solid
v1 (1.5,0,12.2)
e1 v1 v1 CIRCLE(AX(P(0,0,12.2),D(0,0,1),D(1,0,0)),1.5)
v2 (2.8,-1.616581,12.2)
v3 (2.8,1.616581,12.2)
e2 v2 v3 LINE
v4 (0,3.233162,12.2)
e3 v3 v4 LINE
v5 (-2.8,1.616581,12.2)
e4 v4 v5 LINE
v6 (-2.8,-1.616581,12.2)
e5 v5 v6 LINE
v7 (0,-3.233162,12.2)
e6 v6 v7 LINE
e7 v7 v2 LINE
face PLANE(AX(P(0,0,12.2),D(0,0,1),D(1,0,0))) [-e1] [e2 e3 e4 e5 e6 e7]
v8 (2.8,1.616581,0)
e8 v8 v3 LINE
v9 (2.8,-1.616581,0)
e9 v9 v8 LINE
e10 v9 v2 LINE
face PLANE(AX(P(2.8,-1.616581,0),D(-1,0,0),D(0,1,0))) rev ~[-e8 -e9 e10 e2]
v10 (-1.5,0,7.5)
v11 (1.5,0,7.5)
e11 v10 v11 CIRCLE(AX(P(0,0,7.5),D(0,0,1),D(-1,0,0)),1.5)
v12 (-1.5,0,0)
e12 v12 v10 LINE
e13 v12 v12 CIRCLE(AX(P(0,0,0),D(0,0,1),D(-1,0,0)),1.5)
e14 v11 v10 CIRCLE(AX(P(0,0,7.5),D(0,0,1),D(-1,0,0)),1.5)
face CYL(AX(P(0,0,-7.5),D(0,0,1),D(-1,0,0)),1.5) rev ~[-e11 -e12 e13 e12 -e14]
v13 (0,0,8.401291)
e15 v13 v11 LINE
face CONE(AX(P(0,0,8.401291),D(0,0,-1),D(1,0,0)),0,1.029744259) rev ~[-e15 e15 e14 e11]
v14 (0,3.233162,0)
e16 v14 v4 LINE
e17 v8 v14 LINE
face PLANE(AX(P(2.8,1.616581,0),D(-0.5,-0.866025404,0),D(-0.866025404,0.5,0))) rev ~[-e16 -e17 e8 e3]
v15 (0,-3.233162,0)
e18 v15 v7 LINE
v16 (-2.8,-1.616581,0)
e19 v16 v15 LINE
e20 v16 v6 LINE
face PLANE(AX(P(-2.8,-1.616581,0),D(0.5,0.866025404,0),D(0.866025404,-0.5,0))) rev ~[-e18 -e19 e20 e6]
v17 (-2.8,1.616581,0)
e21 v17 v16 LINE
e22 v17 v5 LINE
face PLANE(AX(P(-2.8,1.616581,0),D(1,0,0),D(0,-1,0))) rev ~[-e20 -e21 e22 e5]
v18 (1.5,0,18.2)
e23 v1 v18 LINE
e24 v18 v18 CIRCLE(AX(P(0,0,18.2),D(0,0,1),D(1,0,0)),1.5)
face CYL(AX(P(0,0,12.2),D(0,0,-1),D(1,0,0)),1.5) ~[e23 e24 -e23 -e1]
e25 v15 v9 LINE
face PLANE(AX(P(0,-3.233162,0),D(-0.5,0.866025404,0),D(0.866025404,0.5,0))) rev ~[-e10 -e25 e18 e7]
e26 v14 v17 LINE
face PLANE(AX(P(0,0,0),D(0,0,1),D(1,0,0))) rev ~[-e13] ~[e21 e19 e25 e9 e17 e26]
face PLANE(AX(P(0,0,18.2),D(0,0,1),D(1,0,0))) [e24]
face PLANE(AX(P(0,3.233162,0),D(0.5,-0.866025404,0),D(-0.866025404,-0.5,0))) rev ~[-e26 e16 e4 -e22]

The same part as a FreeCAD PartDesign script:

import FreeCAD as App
import Part
import Sketcher
Q = App.Units.Quantity


def add_polygon(sketch, points):
    """Adds a closed chain of lines whose ends are joined by coincident constraints."""
    first, n = sketch.GeometryCount, len(points)
    for a, b in zip(points, points[1:] + points[:1]):
        sketch.addGeometry(Part.LineSegment(App.Vector(*a, 0), App.Vector(*b, 0)), False)
    for i in range(n):
        sketch.addConstraint(Sketcher.Constraint("Coincident", first + i, 2, first + (i + 1) % n, 1))

doc = App.newDocument("Part")
body = doc.addObject("PartDesign::Body", "Body")

# Sketch on XY plane
sketch1 = doc.addObject("Sketcher::SketchObject", "Sketch")
body.addObject(sketch1)
sketch1.AttachmentSupport = (doc.XY_Plane, [""])
sketch1.MapMode = "FlatFace"
add_polygon(sketch1, [(2.8, -1.6), (2.8, 1.6), (0, 3.2), (-2.8, 1.6), (-2.8, -1.6), (0, -3.2)])  # lines 0-5
sketch1.addConstraint([
    Sketcher.Constraint("Vertical", 0),
    Sketcher.Constraint("Vertical", 3),
    Sketcher.Constraint("Symmetric", 0, 2, 3, 2, -1, 1),
    Sketcher.Constraint("Symmetric", 1, 2, 4, 2, -1, 1),
    Sketcher.Constraint("PointOnObject", 1, 2, -2),
    Sketcher.Constraint("Parallel", 2, 5),
    Sketcher.Constraint("Horizontal", 0, 2, 2, 2),
    Sketcher.Constraint("Angle", 1, Q("150 deg")),
    Sketcher.Constraint("DistanceX", -1, 1, 0, 2, Q("2.8 mm")),
    Sketcher.Constraint("DistanceY", 0, 1, 0, 2, Q("3.233162 mm")),
])
pad1 = doc.addObject("PartDesign::Pad", "Pad")
body.addObject(pad1)
pad1.Profile = sketch1
pad1.Length = 12.2

# Sketch on XY plane
sketch2 = doc.addObject("Sketcher::SketchObject", "Sketch001")
body.addObject(sketch2)
sketch2.AttachmentSupport = (doc.XY_Plane, [""])
sketch2.MapMode = "FlatFace"
sketch2.addGeometry(Part.Circle(App.Vector(0, 0, 0), App.Vector(0, 0, 1), 1.5), False)
sketch2.addConstraint([
    Sketcher.Constraint("Coincident", 0, 3, -1, 1),
    Sketcher.Constraint("Diameter", 0, Q("3 mm")),
])
doc.recompute()
hole = doc.addObject("PartDesign::Hole", "Hole")
body.addObject(hole)
hole.Profile = sketch2
hole.ThreadType = "None"
hole.Diameter = 3
hole.DepthType = "Dimension"
hole.Depth = 7.5
hole.DrillPoint = "Angled"
hole.DrillPointAngle = 118
hole.Reversed = True

# Sketch on XY plane
sketch3 = doc.addObject("Sketcher::SketchObject", "Sketch002")
body.addObject(sketch3)
sketch3.AttachmentSupport = (doc.XY_Plane, [""])
sketch3.MapMode = "FlatFace"
sketch3.AttachmentOffset = App.Placement(App.Vector(0, 0, 12.2), App.Rotation())
sketch3.addGeometry(Part.Circle(App.Vector(0, 0, 0), App.Vector(0, 0, 1), 1.5), False)
sketch3.addConstraint([
    Sketcher.Constraint("Coincident", 0, 3, -1, 1),
    Sketcher.Constraint("Diameter", 0, Q("3 mm")),
])
pad2 = doc.addObject("PartDesign::Pad", "Pad001")
body.addObject(pad2)
pad2.Profile = sketch3
pad2.Length = 6

doc.recompute()
